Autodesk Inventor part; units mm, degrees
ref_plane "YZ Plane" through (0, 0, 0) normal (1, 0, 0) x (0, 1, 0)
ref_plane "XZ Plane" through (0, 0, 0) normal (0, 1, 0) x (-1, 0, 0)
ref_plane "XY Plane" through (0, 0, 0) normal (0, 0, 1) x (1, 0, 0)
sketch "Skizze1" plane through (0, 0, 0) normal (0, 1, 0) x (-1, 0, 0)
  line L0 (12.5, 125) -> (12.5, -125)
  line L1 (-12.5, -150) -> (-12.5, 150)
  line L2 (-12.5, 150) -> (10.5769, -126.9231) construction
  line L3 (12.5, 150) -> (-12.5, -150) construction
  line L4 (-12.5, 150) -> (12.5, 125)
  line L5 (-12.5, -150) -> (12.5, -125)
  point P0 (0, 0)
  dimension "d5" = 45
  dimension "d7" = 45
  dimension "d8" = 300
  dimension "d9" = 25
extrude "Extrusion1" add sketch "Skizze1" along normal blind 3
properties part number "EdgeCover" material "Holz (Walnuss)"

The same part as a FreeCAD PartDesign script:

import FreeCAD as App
import Part
import Sketcher

V = App.Vector

doc = App.newDocument("Part")
body = doc.addObject("PartDesign::Body", "Body")

# Sketch on XZ plane
sketch1 = body.newObject("Sketcher::SketchObject", "Sketch")
sketch1.AttachmentSupport = (doc.getObject("XZ_Plane"), [""])
sketch1.MapMode = "FlatFace"
sketch1.addGeometry([
    Part.LineSegment(V(-12, -125, 0), V(-12, 125, 0)),
    Part.LineSegment(V(-12, 125, 0), V(12, 150, 0)),
    Part.LineSegment(V(12, 150, 0), V(12, -150, 0)),
    Part.LineSegment(V(12, -150, 0), V(-12, -125, 0)),
], False)
sketch1.addConstraint([
    Sketcher.Constraint("Coincident", 0, 2, 1, 1),
    Sketcher.Constraint("Coincident", 1, 2, 2, 1),
    Sketcher.Constraint("Coincident", 2, 2, 3, 1),
    Sketcher.Constraint("Coincident", 3, 2, 0, 1),
    Sketcher.Constraint("Vertical", 0),
    Sketcher.Constraint("Vertical", 2),
    Sketcher.Constraint("Perpendicular", 1, 3),
    Sketcher.Constraint("Equal", 1, 3),
    Sketcher.Constraint("DistanceY", 2, 2, 2, 1, 300.0),
    Sketcher.Constraint("DistanceX", 0, 2, 1, 2, 25.0),
    Sketcher.Constraint("DistanceY", -1, 1, 0, 2, 125.0),
    Sketcher.Constraint("DistanceX", 0, 2, -1, 1, 12.5),
])
pad1 = body.newObject("PartDesign::Pad", "Pad")
pad1.Profile = sketch1
pad1.Length = 3
pad1.Reversed = True

doc.recompute()
